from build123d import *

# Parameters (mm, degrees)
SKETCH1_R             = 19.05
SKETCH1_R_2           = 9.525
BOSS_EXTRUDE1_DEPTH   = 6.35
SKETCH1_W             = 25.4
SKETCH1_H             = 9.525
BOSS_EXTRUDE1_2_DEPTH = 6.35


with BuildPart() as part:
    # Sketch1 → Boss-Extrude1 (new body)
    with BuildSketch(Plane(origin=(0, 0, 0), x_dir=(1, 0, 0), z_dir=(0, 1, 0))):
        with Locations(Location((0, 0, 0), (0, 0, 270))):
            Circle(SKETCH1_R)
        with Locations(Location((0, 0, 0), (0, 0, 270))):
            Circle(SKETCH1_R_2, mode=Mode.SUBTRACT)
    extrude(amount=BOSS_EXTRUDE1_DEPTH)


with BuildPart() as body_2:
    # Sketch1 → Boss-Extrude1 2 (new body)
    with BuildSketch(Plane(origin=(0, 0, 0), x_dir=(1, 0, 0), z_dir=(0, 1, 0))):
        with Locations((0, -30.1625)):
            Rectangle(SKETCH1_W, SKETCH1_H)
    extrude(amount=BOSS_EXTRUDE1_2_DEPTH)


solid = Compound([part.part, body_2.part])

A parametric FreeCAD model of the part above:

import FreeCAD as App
import Part
import Sketcher
from FreeCAD import Vector
Q = App.Units.Quantity

doc = App.newDocument("Part")
body = doc.addObject("PartDesign::Body", "Body")

sketch1 = body.newObject("Sketcher::SketchObject", "Sketch")
sketch1.AttachmentSupport = (doc.getObject("XZ_Plane"), [""])
sketch1.MapMode = "FlatFace"
sketch1.addGeometry(Part.Circle(Vector(0, 0, 0), Vector(0, 0, 1), 19.05), False)
sketch1.addGeometry(Part.Circle(Vector(0, 0, 0), Vector(0, 0, 1), 9.525), False)
sketch1.addConstraint(Sketcher.Constraint("Coincident", 0, 3, -1, 1))
sketch1.addConstraint(Sketcher.Constraint("Coincident", 1, 3, -1, 1))
sketch1.addConstraint(Sketcher.Constraint("Diameter", 0, Q("1.5 in")))
sketch1.addConstraint(Sketcher.Constraint("Diameter", 1, Q("0.75 in")))
pad1 = body.newObject("PartDesign::Pad", "Pad")
pad1.Profile = sketch1
pad1.Length = Q("0.25 in")
pad1.Reversed = True
body2 = doc.addObject("PartDesign::Body", "Body001")

sketch2 = body2.newObject("Sketcher::SketchObject", "Sketch001")
sketch2.AttachmentSupport = (doc.getObject("XZ_Plane001"), [""])
sketch2.MapMode = "FlatFace"
sketch2.addGeometry(Part.LineSegment(Vector(-12.7, 25.4, 0), Vector(-12.7, 34.925, 0)), False)
sketch2.addGeometry(Part.LineSegment(Vector(-12.7, 34.925, 0), Vector(12.7, 34.925, 0)), False)
sketch2.addGeometry(Part.LineSegment(Vector(12.7, 34.925, 0), Vector(12.7, 25.4, 0)), False)
sketch2.addGeometry(Part.LineSegment(Vector(12.7, 25.4, 0), Vector(-12.7, 25.4, 0)), False)
sketch2.addConstraint(Sketcher.Constraint("Coincident", 0, 2, 1, 1))
sketch2.addConstraint(Sketcher.Constraint("Coincident", 1, 2, 2, 1))
sketch2.addConstraint(Sketcher.Constraint("Coincident", 2, 2, 3, 1))
sketch2.addConstraint(Sketcher.Constraint("Coincident", 3, 2, 0, 1))
sketch2.addConstraint(Sketcher.Constraint("Vertical", 0))
sketch2.addConstraint(Sketcher.Constraint("Horizontal", 1))
sketch2.addConstraint(Sketcher.Constraint("Vertical", 2))
sketch2.addConstraint(Sketcher.Constraint("Horizontal", 3))
sketch2.addConstraint(Sketcher.Constraint("DistanceX", 1, 1, 1, 2, Q("1 in")))
sketch2.addConstraint(Sketcher.Constraint("DistanceY", -1, 1, 2, 2, Q("1 in")))
sketch2.addConstraint(Sketcher.Constraint("DistanceX", 0, 2, -1, 1, Q("0.5 in")))
sketch2.addConstraint(Sketcher.Constraint("DistanceY", 0, 1, 0, 2, Q("0.375 in")))
pad2 = body2.newObject("PartDesign::Pad", "Pad001")
pad2.Profile = sketch2
pad2.Length = Q("0.25 in")
pad2.Reversed = True

doc.recompute()
